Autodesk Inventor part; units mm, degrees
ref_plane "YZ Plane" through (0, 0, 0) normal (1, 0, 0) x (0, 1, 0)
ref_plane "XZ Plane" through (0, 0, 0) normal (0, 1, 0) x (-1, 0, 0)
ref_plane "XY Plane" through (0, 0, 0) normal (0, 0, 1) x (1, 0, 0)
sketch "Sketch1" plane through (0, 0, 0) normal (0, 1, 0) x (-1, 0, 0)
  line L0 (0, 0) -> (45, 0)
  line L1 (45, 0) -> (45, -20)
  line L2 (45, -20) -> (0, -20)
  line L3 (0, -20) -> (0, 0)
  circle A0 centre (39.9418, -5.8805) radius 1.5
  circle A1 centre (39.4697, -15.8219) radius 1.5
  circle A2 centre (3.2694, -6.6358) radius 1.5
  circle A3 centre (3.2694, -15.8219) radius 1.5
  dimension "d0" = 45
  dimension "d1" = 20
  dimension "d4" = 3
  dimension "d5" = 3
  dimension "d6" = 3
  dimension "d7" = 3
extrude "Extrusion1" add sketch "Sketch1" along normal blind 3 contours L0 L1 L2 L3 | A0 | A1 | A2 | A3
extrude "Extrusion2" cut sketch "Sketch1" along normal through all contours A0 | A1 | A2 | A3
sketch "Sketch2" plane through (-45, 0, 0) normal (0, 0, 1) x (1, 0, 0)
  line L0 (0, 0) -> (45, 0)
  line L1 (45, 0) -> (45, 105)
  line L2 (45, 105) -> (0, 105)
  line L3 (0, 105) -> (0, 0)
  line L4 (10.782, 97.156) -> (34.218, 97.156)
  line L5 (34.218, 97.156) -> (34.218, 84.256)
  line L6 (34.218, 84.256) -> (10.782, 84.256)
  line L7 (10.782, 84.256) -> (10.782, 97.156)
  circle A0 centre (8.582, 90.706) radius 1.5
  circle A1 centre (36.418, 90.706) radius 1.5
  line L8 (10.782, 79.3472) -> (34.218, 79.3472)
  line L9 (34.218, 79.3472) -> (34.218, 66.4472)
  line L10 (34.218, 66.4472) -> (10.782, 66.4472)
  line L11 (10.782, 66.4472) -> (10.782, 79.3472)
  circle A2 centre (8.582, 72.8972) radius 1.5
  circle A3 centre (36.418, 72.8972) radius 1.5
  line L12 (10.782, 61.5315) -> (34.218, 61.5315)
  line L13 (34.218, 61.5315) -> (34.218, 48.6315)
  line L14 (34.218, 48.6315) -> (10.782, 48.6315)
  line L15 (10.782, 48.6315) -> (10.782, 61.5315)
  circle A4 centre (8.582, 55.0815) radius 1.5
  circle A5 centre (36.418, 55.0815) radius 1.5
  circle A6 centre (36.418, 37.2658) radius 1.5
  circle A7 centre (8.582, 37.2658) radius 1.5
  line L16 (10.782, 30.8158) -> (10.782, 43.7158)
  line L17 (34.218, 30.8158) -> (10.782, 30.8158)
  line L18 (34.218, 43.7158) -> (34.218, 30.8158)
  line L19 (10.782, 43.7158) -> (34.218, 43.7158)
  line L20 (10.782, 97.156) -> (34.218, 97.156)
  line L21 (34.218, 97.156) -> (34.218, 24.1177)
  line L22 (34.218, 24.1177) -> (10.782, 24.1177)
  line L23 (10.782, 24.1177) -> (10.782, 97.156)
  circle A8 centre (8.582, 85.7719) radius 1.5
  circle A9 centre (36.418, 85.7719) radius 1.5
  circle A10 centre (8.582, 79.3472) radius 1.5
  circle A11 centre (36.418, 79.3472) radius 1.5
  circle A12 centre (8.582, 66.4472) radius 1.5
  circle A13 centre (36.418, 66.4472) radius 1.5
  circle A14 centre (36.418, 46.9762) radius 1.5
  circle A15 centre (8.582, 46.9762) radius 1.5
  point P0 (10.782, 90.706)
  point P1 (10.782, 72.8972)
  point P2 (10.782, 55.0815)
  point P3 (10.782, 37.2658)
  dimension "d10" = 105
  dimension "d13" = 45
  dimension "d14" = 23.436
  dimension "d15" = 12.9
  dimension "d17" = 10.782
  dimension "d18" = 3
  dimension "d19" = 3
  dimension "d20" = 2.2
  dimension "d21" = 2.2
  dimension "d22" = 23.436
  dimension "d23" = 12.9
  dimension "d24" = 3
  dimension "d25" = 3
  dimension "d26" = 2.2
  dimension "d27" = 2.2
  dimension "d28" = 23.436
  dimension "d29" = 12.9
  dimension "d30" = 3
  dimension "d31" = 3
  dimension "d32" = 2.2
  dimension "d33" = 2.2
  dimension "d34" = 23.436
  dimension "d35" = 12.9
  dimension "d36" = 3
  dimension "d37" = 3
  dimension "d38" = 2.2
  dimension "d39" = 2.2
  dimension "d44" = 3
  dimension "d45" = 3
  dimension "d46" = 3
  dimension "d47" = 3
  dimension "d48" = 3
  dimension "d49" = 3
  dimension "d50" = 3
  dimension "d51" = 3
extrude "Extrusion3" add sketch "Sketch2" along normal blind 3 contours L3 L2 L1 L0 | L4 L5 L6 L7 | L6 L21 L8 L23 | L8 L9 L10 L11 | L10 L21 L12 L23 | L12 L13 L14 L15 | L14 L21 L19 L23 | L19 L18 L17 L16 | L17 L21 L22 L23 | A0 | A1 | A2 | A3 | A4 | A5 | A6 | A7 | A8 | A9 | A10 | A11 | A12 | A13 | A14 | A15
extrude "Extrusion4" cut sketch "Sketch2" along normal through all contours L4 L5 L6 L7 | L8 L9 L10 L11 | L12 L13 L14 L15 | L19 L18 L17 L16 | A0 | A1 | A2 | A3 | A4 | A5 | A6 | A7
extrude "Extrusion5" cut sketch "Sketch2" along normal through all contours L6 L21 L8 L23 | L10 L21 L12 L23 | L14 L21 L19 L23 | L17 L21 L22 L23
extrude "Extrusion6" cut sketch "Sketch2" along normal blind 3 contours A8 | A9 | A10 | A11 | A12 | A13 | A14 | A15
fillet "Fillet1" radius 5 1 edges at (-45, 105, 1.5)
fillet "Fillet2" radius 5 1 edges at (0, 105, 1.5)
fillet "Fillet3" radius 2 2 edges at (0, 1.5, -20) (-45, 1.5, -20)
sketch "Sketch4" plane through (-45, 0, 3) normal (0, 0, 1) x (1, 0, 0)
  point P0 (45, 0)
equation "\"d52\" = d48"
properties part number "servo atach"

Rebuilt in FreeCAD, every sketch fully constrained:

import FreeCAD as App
import Part
import Sketcher
from FreeCAD import Vector
Q = App.Units.Quantity


def edges_at(feature, points):
    """Names of the edges that pass closest to the given points."""
    edges = feature.Shape.Edges
    near = lambda p: min(range(len(edges)), key=lambda i: edges[i].distToShape(Part.Vertex(*p))[0])
    return sorted({f"Edge{near(p) + 1}" for p in points})


def add_polygon(sketch, points):
    """Adds a closed chain of lines whose ends are joined by coincident constraints."""
    first, n = sketch.GeometryCount, len(points)
    for a, b in zip(points, points[1:] + points[:1]):
        sketch.addGeometry(Part.LineSegment(App.Vector(*a, 0), App.Vector(*b, 0)), False)
    for i in range(n):
        sketch.addConstraint(Sketcher.Constraint("Coincident", first + i, 2, first + (i + 1) % n, 1))

doc = App.newDocument("Part")
body = doc.addObject("PartDesign::Body", "Body")

# Sketch on XZ plane
sketch1 = body.newObject("Sketcher::SketchObject", "Sketch")
sketch1.AttachmentSupport = (doc.getObject("XZ_Plane"), [""])
sketch1.MapMode = "FlatFace"
add_polygon(sketch1, [(-45, 0), (0, 0), (0, -20), (-45, -20)])  # lines 0-3
sketch1.addConstraint([
    Sketcher.Constraint("Horizontal", 0),
    Sketcher.Constraint("Vertical", 1),
    Sketcher.Constraint("Horizontal", 2),
    Sketcher.Constraint("Vertical", 3),
    Sketcher.Constraint("Coincident", 0, 2, -1, 1),
    Sketcher.Constraint("DistanceX", 0, 1, 0, 2, Q("45 mm")),
    Sketcher.Constraint("DistanceY", 1, 2, 1, 1, Q("20 mm")),
])
pad1 = body.newObject("PartDesign::Pad", "Pad")
pad1.Profile = sketch1
pad1.Length = 3
pad1.Reversed = True

# Sketch on XZ plane
sketch2 = body.newObject("Sketcher::SketchObject", "Sketch001")
sketch2.AttachmentSupport = (doc.getObject("XZ_Plane"), [""])
sketch2.MapMode = "FlatFace"
sketch2.addGeometry([
    Part.Circle(Vector(-39.9, -5.9, 0), Vector(0, 0, 1), 1.5),
    Part.Circle(Vector(-39.5, -15.8, 0), Vector(0, 0, 1), 1.5),
    Part.Circle(Vector(-3.3, -6.6, 0), Vector(0, 0, 1), 1.5),
    Part.Circle(Vector(-3.3, -15.8, 0), Vector(0, 0, 1), 1.5),
], False)
sketch2.addConstraint([
    Sketcher.Constraint("Equal", 0, 1),
    Sketcher.Constraint("Equal", 1, 2),
    Sketcher.Constraint("Equal", 2, 3),
    Sketcher.Constraint("Horizontal", 1, 3, 3, 3),
    Sketcher.Constraint("Vertical", 2, 3, 3, 3),
    Sketcher.Constraint("Diameter", 0, Q("3 mm")),
    Sketcher.Constraint("DistanceY", 1, 3, -1, 1, Q("15.822 mm")),
    Sketcher.Constraint("DistanceX", 0, 3, 1, 3, Q("0.472 mm")),
    Sketcher.Constraint("DistanceY", 1, 3, 2, 3, Q("9.186 mm")),
    Sketcher.Constraint("DistanceX", 0, 3, -1, 1, Q("39.9418 mm")),
    Sketcher.Constraint("DistanceY", 0, 3, -1, 1, Q("5.8805 mm")),
    Sketcher.Constraint("DistanceX", 2, 3, -1, 1, Q("3.2694 mm")),
])
pocket1 = body.newObject("PartDesign::Pocket", "Pocket")
pocket1.Profile = sketch2
pocket1.Type = "ThroughAll"

# Sketch on XY plane
sketch3 = body.newObject("Sketcher::SketchObject", "Sketch002")
sketch3.AttachmentSupport = (doc.getObject("XY_Plane"), [""])
sketch3.MapMode = "FlatFace"
add_polygon(sketch3, [(-45, 105), (-45, 0), (0, 0), (0, 105)])  # lines 0-3
sketch3.addConstraint([
    Sketcher.Constraint("Vertical", 0),
    Sketcher.Constraint("Horizontal", 1),
    Sketcher.Constraint("Vertical", 2),
    Sketcher.Constraint("Horizontal", 3),
    Sketcher.Constraint("Coincident", 1, 2, -1, 1),
    Sketcher.Constraint("DistanceX", 1, 1, 1, 2, Q("45 mm")),
    Sketcher.Constraint("DistanceY", 0, 2, 0, 1, Q("105 mm")),
])
pad2 = body.newObject("PartDesign::Pad", "Pad001")
pad2.Profile = sketch3
pad2.Length = 3

# Sketch on XY plane
sketch4 = body.newObject("Sketcher::SketchObject", "Sketch003")
sketch4.AttachmentSupport = (doc.getObject("XY_Plane"), [""])
sketch4.MapMode = "FlatFace"
add_polygon(sketch4, [(-10.8, 97.2), (-34.2, 97.2), (-34.2, 84.3), (-10.8, 84.3)])  # lines 0-3
add_polygon(sketch4, [(-10.8, 79.3), (-34.2, 79.3), (-34.2, 66.4), (-10.8, 66.4)])  # lines 4-7
add_polygon(sketch4, [(-10.8, 61.5), (-34.2, 61.5), (-34.2, 48.6), (-10.8, 48.6)])  # lines 8-11
add_polygon(sketch4, [(-10.8, 43.7), (-34.2, 43.7), (-34.2, 30.8), (-10.8, 30.8)])  # lines 12-15
sketch4.addGeometry(Part.Circle(Vector(-36.4, 90.7, 0), Vector(0, 0, 1), 1.5), False)  # 16
sketch4.addGeometry(Part.Circle(Vector(-8.6, 90.7, 0), Vector(0, 0, 1), 1.5), False)  # 17
sketch4.addGeometry(Part.Circle(Vector(-36.4, 72.9, 0), Vector(0, 0, 1), 1.5), False)  # 18
sketch4.addGeometry(Part.Circle(Vector(-8.6, 72.9, 0), Vector(0, 0, 1), 1.5), False)  # 19
sketch4.addGeometry(Part.Circle(Vector(-36.4, 55.1, 0), Vector(0, 0, 1), 1.5), False)  # 20
sketch4.addGeometry(Part.Circle(Vector(-8.6, 55.1, 0), Vector(0, 0, 1), 1.5), False)  # 21
sketch4.addGeometry(Part.Circle(Vector(-8.6, 37.3, 0), Vector(0, 0, 1), 1.5), False)  # 22
sketch4.addGeometry(Part.Circle(Vector(-36.4, 37.3, 0), Vector(0, 0, 1), 1.5), False)  # 23
sketch4.addConstraint([
    Sketcher.Constraint("Horizontal", 0),
    Sketcher.Constraint("Vertical", 1),
    Sketcher.Constraint("Horizontal", 2),
    Sketcher.Constraint("Vertical", 3),
    Sketcher.Constraint("Horizontal", 4),
    Sketcher.Constraint("Vertical", 5),
    Sketcher.Constraint("Horizontal", 6),
    Sketcher.Constraint("Vertical", 7),
    Sketcher.Constraint("Horizontal", 8),
    Sketcher.Constraint("Vertical", 9),
    Sketcher.Constraint("Horizontal", 10),
    Sketcher.Constraint("Vertical", 11),
    Sketcher.Constraint("Horizontal", 12),
    Sketcher.Constraint("Vertical", 13),
    Sketcher.Constraint("Horizontal", 14),
    Sketcher.Constraint("Vertical", 15),
    Sketcher.Constraint("Equal", 16, 17),
    Sketcher.Constraint("Equal", 17, 18),
    Sketcher.Constraint("Equal", 18, 19),
    Sketcher.Constraint("Equal", 19, 20),
    Sketcher.Constraint("Equal", 20, 21),
    Sketcher.Constraint("Equal", 21, 22),
    Sketcher.Constraint("Equal", 22, 23),
    Sketcher.Constraint("Horizontal", 16, 3, 17, 3),
    Sketcher.Constraint("Horizontal", 18, 3, 19, 3),
    Sketcher.Constraint("Horizontal", 20, 3, 21, 3),
    Sketcher.Constraint("Horizontal", 22, 3, 23, 3),
    Sketcher.Constraint("Vertical", 16, 3, 18, 3),
    Sketcher.Constraint("Vertical", 17, 3, 19, 3),
    Sketcher.Constraint("Vertical", 18, 3, 20, 3),
    Sketcher.Constraint("Vertical", 19, 3, 21, 3),
    Sketcher.Constraint("Vertical", 21, 3, 22, 3),
    Sketcher.Constraint("Vertical", 20, 3, 23, 3),
    Sketcher.Constraint("Vertical", 1, 2, 4, 2),
    Sketcher.Constraint("Vertical", 3, 2, 6, 2),
    Sketcher.Constraint("Vertical", 5, 2, 8, 2),
    Sketcher.Constraint("Vertical", 7, 2, 10, 2),
    Sketcher.Constraint("Vertical", 9, 2, 12, 2),
    Sketcher.Constraint("Vertical", 11, 2, 14, 2),
    Sketcher.Constraint("Equal", 3, 5),
    Sketcher.Constraint("Equal", 7, 9),
    Sketcher.Constraint("Equal", 11, 13),
    Sketcher.Constraint("Diameter", 16, Q("3 mm")),
    Sketcher.Constraint("DistanceY", 1, 2, 1, 1, Q("12.9 mm")),
    Sketcher.Constraint("DistanceX", 16, 3, 0, 2, Q("2.2 mm")),
    Sketcher.Constraint("DistanceX", 2, 2, 17, 3, Q("2.2 mm")),
    Sketcher.Constraint("DistanceX", 0, 2, 0, 1, Q("23.436 mm")),
    Sketcher.Constraint("DistanceX", 2, 2, -1, 1, Q("10.782 mm")),
    Sketcher.Constraint("DistanceY", 16, 3, 0, 2, Q("6.45 mm")),
    Sketcher.Constraint("DistanceY", 18, 3, 4, 2, Q("6.45 mm")),
    Sketcher.Constraint("DistanceY", 20, 3, 8, 2, Q("6.45 mm")),
    Sketcher.Constraint("DistanceY", 23, 3, 12, 2, Q("6.45 mm")),
    Sketcher.Constraint("DistanceY", -1, 1, 16, 3, Q("90.706 mm")),
    Sketcher.Constraint("DistanceY", -1, 1, 18, 3, Q("72.8972 mm")),
    Sketcher.Constraint("DistanceY", -1, 1, 20, 3, Q("55.0815 mm")),
    Sketcher.Constraint("DistanceY", -1, 1, 22, 3, Q("37.2658 mm")),
])
pocket2 = body.newObject("PartDesign::Pocket", "Pocket001")
pocket2.Profile = sketch4
pocket2.Type = "ThroughAll"
pocket2.Reversed = True

# Sketch on XY plane
sketch5 = body.newObject("Sketcher::SketchObject", "Sketch004")
sketch5.AttachmentSupport = (doc.getObject("XY_Plane"), [""])
sketch5.MapMode = "FlatFace"
add_polygon(sketch5, [(-10.8, 84.3), (-34.2, 84.3), (-34.2, 79.3), (-10.8, 79.3)])  # lines 0-3
add_polygon(sketch5, [(-10.8, 66.4), (-34.2, 66.4), (-34.2, 61.5), (-10.8, 61.5)])  # lines 4-7
add_polygon(sketch5, [(-10.8, 48.6), (-34.2, 48.6), (-34.2, 43.7), (-10.8, 43.7)])  # lines 8-11
add_polygon(sketch5, [(-10.8, 30.8), (-34.2, 30.8), (-34.2, 24.1), (-10.8, 24.1)])  # lines 12-15
sketch5.addConstraint([
    Sketcher.Constraint("Horizontal", 0),
    Sketcher.Constraint("Vertical", 1),
    Sketcher.Constraint("Horizontal", 2),
    Sketcher.Constraint("Vertical", 3),
    Sketcher.Constraint("Horizontal", 4),
    Sketcher.Constraint("Vertical", 5),
    Sketcher.Constraint("Horizontal", 6),
    Sketcher.Constraint("Vertical", 7),
    Sketcher.Constraint("Horizontal", 8),
    Sketcher.Constraint("Vertical", 9),
    Sketcher.Constraint("Horizontal", 10),
    Sketcher.Constraint("Vertical", 11),
    Sketcher.Constraint("Horizontal", 12),
    Sketcher.Constraint("Vertical", 13),
    Sketcher.Constraint("Horizontal", 14),
    Sketcher.Constraint("Vertical", 15),
    Sketcher.Constraint("Vertical", 1, 2, 4, 2),
    Sketcher.Constraint("Vertical", 3, 2, 6, 2),
    Sketcher.Constraint("Vertical", 5, 2, 8, 2),
    Sketcher.Constraint("Vertical", 7, 2, 10, 2),
    Sketcher.Constraint("Vertical", 9, 2, 12, 2),
    Sketcher.Constraint("Vertical", 11, 2, 14, 2),
    Sketcher.Constraint("Equal", 7, 9),
    Sketcher.Constraint("DistanceY", 4, 2, 1, 2, Q("12.9 mm")),
    Sketcher.Constraint("DistanceY", 8, 2, 5, 2, Q("12.9 mm")),
    Sketcher.Constraint("DistanceY", 12, 2, 9, 2, Q("12.9 mm")),
    Sketcher.Constraint("DistanceX", 0, 2, 0, 1, Q("23.436 mm")),
    Sketcher.Constraint("DistanceX", 2, 2, -1, 1, Q("10.782 mm")),
    Sketcher.Constraint("DistanceY", 13, 2, 13, 1, Q("6.698 mm")),
    Sketcher.Constraint("DistanceY", 1, 2, 1, 1, Q("4.9088 mm")),
    Sketcher.Constraint("DistanceY", 5, 2, 5, 1, Q("4.9157 mm")),
    Sketcher.Constraint("DistanceY", -1, 1, 0, 2, Q("84.256 mm")),
])
pocket3 = body.newObject("PartDesign::Pocket", "Pocket002")
pocket3.Profile = sketch5
pocket3.Type = "ThroughAll"
pocket3.Reversed = True

# Sketch on XY plane
sketch6 = body.newObject("Sketcher::SketchObject", "Sketch005")
sketch6.AttachmentSupport = (doc.getObject("XY_Plane"), [""])
sketch6.MapMode = "FlatFace"
sketch6.addGeometry([
    Part.Circle(Vector(-36.4, 85.8, 0), Vector(0, 0, 1), 1.5),  # 0
    Part.Circle(Vector(-8.6, 85.8, 0), Vector(0, 0, 1), 1.5),  # 1
    Part.Circle(Vector(-36.4, 79.3, 0), Vector(0, 0, 1), 1.5),  # 2
    Part.Circle(Vector(-8.6, 79.3, 0), Vector(0, 0, 1), 1.5),  # 3
    Part.Circle(Vector(-36.4, 66.4, 0), Vector(0, 0, 1), 1.5),  # 4
    Part.Circle(Vector(-8.6, 66.4, 0), Vector(0, 0, 1), 1.5),  # 5
    Part.Circle(Vector(-8.6, 47, 0), Vector(0, 0, 1), 1.5),  # 6
    Part.Circle(Vector(-36.4, 47, 0), Vector(0, 0, 1), 1.5),  # 7
], False)
sketch6.addConstraint([
    Sketcher.Constraint("Equal", 0, 1),
    Sketcher.Constraint("Equal", 1, 2),
    Sketcher.Constraint("Equal", 2, 3),
    Sketcher.Constraint("Equal", 3, 4),
    Sketcher.Constraint("Equal", 4, 5),
    Sketcher.Constraint("Equal", 5, 6),
    Sketcher.Constraint("Equal", 6, 7),
    Sketcher.Constraint("Horizontal", 0, 3, 1, 3),
    Sketcher.Constraint("Horizontal", 2, 3, 3, 3),
    Sketcher.Constraint("Horizontal", 4, 3, 5, 3),
    Sketcher.Constraint("Horizontal", 6, 3, 7, 3),
    Sketcher.Constraint("Vertical", 0, 3, 2, 3),
    Sketcher.Constraint("Vertical", 1, 3, 3, 3),
    Sketcher.Constraint("Vertical", 2, 3, 4, 3),
    Sketcher.Constraint("Vertical", 3, 3, 5, 3),
    Sketcher.Constraint("Vertical", 5, 3, 6, 3),
    Sketcher.Constraint("Vertical", 4, 3, 7, 3),
    Sketcher.Constraint("Diameter", 0, Q("3 mm")),
    Sketcher.Constraint("DistanceY", 4, 3, 2, 3, Q("12.9 mm")),
    Sketcher.Constraint("DistanceX", 0, 3, -1, 1, Q("36.418 mm")),
    Sketcher.Constraint("DistanceY", -1, 1, 0, 3, Q("85.772 mm")),
    Sketcher.Constraint("DistanceX", 1, 3, -1, 1, Q("8.582 mm")),
    Sketcher.Constraint("DistanceY", 6, 3, 5, 3, Q("19.471 mm")),
    Sketcher.Constraint("DistanceY", -1, 1, 2, 3, Q("79.3472 mm")),
])
pocket4 = body.newObject("PartDesign::Pocket", "Pocket003")
pocket4.Profile = sketch6
pocket4.Length = 3
pocket4.Reversed = True
doc.recompute()

fillet = body.newObject("PartDesign::Fillet", "Fillet")
fillet.Base = (pocket4, edges_at(pocket4, [(-45, 105, 1.5)]))
fillet.Radius = 5
doc.recompute()

fillet2 = body.newObject("PartDesign::Fillet", "Fillet001")
fillet2.Base = (fillet, edges_at(fillet, [(0, 105, 1.5)]))
fillet2.Radius = 5
doc.recompute()

fillet3 = body.newObject("PartDesign::Fillet", "Fillet002")
fillet3.Base = (fillet2, edges_at(fillet2, [(0, 1.5, -20), (-45, 1.5, -20)]))
fillet3.Radius = 2

doc.recompute()
